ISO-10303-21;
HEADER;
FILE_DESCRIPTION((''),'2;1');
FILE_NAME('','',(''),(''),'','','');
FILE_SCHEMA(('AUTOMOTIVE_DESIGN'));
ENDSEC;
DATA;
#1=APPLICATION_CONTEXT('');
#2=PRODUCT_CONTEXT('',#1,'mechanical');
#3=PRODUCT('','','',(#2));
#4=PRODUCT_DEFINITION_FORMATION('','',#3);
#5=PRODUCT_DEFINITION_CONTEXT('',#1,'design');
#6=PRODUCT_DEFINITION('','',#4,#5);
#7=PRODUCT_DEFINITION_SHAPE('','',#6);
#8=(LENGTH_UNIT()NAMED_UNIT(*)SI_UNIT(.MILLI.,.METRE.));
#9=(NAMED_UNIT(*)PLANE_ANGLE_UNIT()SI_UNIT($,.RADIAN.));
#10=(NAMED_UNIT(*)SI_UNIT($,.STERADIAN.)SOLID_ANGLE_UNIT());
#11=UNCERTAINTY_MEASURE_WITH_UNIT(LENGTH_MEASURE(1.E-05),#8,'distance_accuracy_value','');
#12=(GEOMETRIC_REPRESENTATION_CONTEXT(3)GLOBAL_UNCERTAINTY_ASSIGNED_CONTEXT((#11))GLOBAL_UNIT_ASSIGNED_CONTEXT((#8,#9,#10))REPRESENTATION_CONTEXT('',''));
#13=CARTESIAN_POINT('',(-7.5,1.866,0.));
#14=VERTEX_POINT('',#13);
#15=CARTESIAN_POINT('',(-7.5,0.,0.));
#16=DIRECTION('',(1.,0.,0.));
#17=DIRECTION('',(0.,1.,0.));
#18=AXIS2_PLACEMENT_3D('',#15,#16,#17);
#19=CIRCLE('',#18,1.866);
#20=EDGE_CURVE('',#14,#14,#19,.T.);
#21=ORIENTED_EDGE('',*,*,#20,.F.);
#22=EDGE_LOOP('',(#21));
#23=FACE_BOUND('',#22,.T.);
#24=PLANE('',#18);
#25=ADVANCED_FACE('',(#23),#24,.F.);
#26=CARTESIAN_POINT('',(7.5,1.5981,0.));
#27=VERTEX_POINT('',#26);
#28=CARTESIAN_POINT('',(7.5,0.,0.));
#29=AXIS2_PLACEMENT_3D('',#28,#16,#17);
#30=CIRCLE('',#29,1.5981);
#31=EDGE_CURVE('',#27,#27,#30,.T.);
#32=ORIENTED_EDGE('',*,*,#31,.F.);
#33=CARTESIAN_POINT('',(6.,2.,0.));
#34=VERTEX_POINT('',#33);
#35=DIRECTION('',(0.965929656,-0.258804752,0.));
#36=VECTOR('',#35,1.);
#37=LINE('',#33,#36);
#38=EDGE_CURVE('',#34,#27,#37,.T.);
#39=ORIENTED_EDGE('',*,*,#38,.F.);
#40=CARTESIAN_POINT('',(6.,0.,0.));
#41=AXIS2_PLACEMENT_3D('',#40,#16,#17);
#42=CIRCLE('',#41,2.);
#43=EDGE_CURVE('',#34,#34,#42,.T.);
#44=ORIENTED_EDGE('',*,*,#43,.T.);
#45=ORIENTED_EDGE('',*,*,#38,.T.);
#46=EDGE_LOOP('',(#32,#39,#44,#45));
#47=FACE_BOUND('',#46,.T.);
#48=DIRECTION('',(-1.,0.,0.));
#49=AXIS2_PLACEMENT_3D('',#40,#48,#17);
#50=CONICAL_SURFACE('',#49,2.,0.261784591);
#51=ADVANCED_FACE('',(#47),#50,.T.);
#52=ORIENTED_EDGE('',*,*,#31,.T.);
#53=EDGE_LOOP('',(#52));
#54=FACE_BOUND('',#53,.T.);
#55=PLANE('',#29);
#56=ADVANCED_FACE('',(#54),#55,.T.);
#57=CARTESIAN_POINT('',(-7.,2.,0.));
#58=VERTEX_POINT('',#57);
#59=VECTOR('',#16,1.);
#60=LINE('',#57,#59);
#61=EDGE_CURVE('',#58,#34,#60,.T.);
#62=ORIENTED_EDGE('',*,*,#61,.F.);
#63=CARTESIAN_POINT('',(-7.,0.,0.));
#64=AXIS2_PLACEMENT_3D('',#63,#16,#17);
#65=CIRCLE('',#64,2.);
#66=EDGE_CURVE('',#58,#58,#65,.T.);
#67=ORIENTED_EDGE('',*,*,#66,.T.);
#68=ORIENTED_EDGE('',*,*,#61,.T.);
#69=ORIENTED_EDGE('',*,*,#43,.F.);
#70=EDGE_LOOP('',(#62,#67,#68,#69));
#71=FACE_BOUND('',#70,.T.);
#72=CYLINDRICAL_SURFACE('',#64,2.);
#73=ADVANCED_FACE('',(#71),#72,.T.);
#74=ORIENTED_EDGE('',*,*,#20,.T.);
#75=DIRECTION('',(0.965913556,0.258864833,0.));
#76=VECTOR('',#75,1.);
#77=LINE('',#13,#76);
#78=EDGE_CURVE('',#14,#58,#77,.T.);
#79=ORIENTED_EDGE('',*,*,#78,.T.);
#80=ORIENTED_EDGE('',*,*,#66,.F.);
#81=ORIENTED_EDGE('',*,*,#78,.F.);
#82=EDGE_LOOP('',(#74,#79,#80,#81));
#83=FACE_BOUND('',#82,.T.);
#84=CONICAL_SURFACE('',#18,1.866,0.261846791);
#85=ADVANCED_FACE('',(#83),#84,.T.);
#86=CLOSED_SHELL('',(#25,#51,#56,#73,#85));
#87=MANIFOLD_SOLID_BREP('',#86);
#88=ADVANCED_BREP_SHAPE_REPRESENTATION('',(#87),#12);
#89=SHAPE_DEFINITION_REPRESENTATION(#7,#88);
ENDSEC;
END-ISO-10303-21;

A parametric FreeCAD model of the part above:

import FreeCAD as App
import Part
import Sketcher
from FreeCAD import Vector
Q = App.Units.Quantity


def add_polygon(sketch, points):
    """Adds a closed chain of lines whose ends are joined by coincident constraints."""
    first, n = sketch.GeometryCount, len(points)
    for a, b in zip(points, points[1:] + points[:1]):
        sketch.addGeometry(Part.LineSegment(App.Vector(*a, 0), App.Vector(*b, 0)), False)
    for i in range(n):
        sketch.addConstraint(Sketcher.Constraint("Coincident", first + i, 2, first + (i + 1) % n, 1))

doc = App.newDocument("Part")
body = doc.addObject("PartDesign::Body", "Body")

# Sketch on XY plane
sketch1 = body.newObject("Sketcher::SketchObject", "Sketch")
sketch1.AttachmentSupport = (doc.getObject("XY_Plane"), [""])
sketch1.MapMode = "FlatFace"
add_polygon(sketch1, [(-7.5, 0), (7.5, 0), (7.5, 1.6), (6, 2), (-7, 2), (-7.5, 1.9)])  # lines 0-5
sketch1.addConstraint(Sketcher.Constraint("Horizontal", 0))
sketch1.addConstraint(Sketcher.Constraint("Vertical", 1))
sketch1.addConstraint(Sketcher.Constraint("Horizontal", 3))
sketch1.addConstraint(Sketcher.Constraint("Vertical", 5))
sketch1.addConstraint(Sketcher.Constraint("Symmetric", 0, 2, 5, 2, -1, 1))
sketch1.addConstraint(Sketcher.Constraint("DistanceX", 0, 1, 0, 2, 15.0))
sketch1.addConstraint(Sketcher.Constraint("DistanceX", 3, 2, 3, 1, 13.0))
sketch1.addConstraint(Sketcher.Constraint("Angle", 2, Q("165.0008 deg")))
sketch1.addConstraint(Sketcher.Constraint("DistanceX", -1, 1, 2, 2, 6.0))
sketch1.addConstraint(Sketcher.Constraint("DistanceY", -1, 1, 2, 2, 2.0))
sketch1.addConstraint(Sketcher.Constraint("DistanceY", 5, 2, 5, 1, 1.866))
revolution = body.newObject("PartDesign::Revolution", "Revolution")
revolution.Profile = sketch1
revolution.ReferenceAxis = (sketch1, ["H_Axis"])
revolution.Angle = 360

doc.recompute()
